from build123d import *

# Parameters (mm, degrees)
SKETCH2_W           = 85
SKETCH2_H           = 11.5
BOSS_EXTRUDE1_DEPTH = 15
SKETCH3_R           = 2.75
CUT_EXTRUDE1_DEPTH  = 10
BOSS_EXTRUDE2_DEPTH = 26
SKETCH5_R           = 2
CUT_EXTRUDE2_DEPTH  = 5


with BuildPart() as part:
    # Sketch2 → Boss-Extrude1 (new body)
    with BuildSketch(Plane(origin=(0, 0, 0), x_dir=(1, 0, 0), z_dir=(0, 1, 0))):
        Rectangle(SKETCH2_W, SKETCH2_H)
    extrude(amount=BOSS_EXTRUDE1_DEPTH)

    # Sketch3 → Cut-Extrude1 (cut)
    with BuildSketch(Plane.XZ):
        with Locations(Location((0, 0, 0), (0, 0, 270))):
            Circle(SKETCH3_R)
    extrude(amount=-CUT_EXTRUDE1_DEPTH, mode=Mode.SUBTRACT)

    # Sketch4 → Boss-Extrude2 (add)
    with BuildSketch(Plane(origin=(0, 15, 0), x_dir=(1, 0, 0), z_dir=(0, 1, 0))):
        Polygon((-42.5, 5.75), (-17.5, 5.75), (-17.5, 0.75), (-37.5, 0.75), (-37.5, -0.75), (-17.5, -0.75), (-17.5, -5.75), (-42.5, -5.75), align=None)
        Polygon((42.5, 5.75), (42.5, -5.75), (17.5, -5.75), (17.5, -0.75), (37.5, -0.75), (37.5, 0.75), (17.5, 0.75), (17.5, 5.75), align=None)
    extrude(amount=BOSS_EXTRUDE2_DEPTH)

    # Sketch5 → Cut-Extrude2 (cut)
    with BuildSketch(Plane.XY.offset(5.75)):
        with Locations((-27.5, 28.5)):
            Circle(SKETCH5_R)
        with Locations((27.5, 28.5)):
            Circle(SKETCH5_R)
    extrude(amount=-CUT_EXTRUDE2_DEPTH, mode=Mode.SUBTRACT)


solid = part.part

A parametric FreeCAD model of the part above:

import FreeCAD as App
import Part
import Sketcher
from FreeCAD import Vector
Q = App.Units.Quantity


def add_polygon(sketch, points):
    """Adds a closed chain of lines whose ends are joined by coincident constraints."""
    first, n = sketch.GeometryCount, len(points)
    for a, b in zip(points, points[1:] + points[:1]):
        sketch.addGeometry(Part.LineSegment(App.Vector(*a, 0), App.Vector(*b, 0)), False)
    for i in range(n):
        sketch.addConstraint(Sketcher.Constraint("Coincident", first + i, 2, first + (i + 1) % n, 1))

doc = App.newDocument("Part")
body = doc.addObject("PartDesign::Body", "Body")

# Sketch on XZ plane
sketch1 = body.newObject("Sketcher::SketchObject", "Sketch")
sketch1.AttachmentSupport = (doc.getObject("XZ_Plane"), [""])
sketch1.MapMode = "FlatFace"
add_polygon(sketch1, [(-42.5, -5.75), (-42.5, 5.75), (42.5, 5.75), (42.5, -5.75)])  # lines 0-3
sketch1.addConstraint(Sketcher.Constraint("Vertical", 0))
sketch1.addConstraint(Sketcher.Constraint("Horizontal", 1))
sketch1.addConstraint(Sketcher.Constraint("Vertical", 2))
sketch1.addConstraint(Sketcher.Constraint("Horizontal", 3))
sketch1.addConstraint(Sketcher.Constraint("Symmetric", 0, 2, 2, 2, -1, 1))
sketch1.addConstraint(Sketcher.Constraint("DistanceX", 1, 1, 1, 2, Q("85 mm")))
sketch1.addConstraint(Sketcher.Constraint("DistanceY", 0, 1, 0, 2, Q("11.5 mm")))
pad1 = body.newObject("PartDesign::Pad", "Pad")
pad1.Profile = sketch1
pad1.Length = 15
pad1.Reversed = True

# Sketch on XZ plane
sketch2 = body.newObject("Sketcher::SketchObject", "Sketch001")
sketch2.AttachmentSupport = (doc.getObject("XZ_Plane"), [""])
sketch2.MapMode = "FlatFace"
sketch2.addGeometry(Part.Circle(Vector(0, 0, 0), Vector(0, 0, 1), 2.75), False)
sketch2.addConstraint(Sketcher.Constraint("Coincident", 0, 3, -1, 1))
sketch2.addConstraint(Sketcher.Constraint("Diameter", 0, Q("5.5 mm")))
pocket1 = body.newObject("PartDesign::Pocket", "Pocket")
pocket1.Profile = sketch2
pocket1.Length = 10

# Sketch on XZ plane
sketch3 = body.newObject("Sketcher::SketchObject", "Sketch002")
sketch3.AttachmentSupport = (doc.getObject("XZ_Plane"), [""])
sketch3.MapMode = "FlatFace"
sketch3.AttachmentOffset = App.Placement(Vector(0, 0, -15), App.Rotation())
add_polygon(sketch3, [(-17.5, -5.75), (-42.5, -5.75), (-42.5, 5.75), (-17.5, 5.75), (-17.5, 0.75), (-37.5, 0.75), (-37.5, -0.75), (-17.5, -0.75)])  # lines 0-7
add_polygon(sketch3, [(42.5, 5.75), (42.5, -5.75), (17.5, -5.75), (17.5, -0.75), (37.5, -0.75), (37.5, 0.75), (17.5, 0.75), (17.5, 5.75)])  # lines 8-15
sketch3.addConstraint(Sketcher.Constraint("Horizontal", 0))
sketch3.addConstraint(Sketcher.Constraint("Vertical", 1))
sketch3.addConstraint(Sketcher.Constraint("Horizontal", 2))
sketch3.addConstraint(Sketcher.Constraint("Vertical", 3))
sketch3.addConstraint(Sketcher.Constraint("Horizontal", 4))
sketch3.addConstraint(Sketcher.Constraint("Vertical", 5))
sketch3.addConstraint(Sketcher.Constraint("Horizontal", 6))
sketch3.addConstraint(Sketcher.Constraint("Vertical", 7))
sketch3.addConstraint(Sketcher.Constraint("Vertical", 8))
sketch3.addConstraint(Sketcher.Constraint("Horizontal", 9))
sketch3.addConstraint(Sketcher.Constraint("Vertical", 10))
sketch3.addConstraint(Sketcher.Constraint("Horizontal", 11))
sketch3.addConstraint(Sketcher.Constraint("Vertical", 12))
sketch3.addConstraint(Sketcher.Constraint("Horizontal", 13))
sketch3.addConstraint(Sketcher.Constraint("Vertical", 14))
sketch3.addConstraint(Sketcher.Constraint("Horizontal", 15))
sketch3.addConstraint(Sketcher.Constraint("Symmetric", 1, 2, 8, 2, -1, 1))
sketch3.addConstraint(Sketcher.Constraint("Symmetric", 3, 2, 10, 2, -1, 1))
sketch3.addConstraint(Sketcher.Constraint("Symmetric", 5, 2, 12, 2, -1, 1))
sketch3.addConstraint(Sketcher.Constraint("Symmetric", 7, 2, 14, 2, -1, 1))
sketch3.addConstraint(Sketcher.Constraint("Symmetric", 7, 2, 9, 2, -2))
sketch3.addConstraint(Sketcher.Constraint("Horizontal", 6, 2, 10, 2))
sketch3.addConstraint(Sketcher.Constraint("DistanceX", 0, 2, 0, 1, Q("25 mm")))
sketch3.addConstraint(Sketcher.Constraint("DistanceX", 4, 2, 4, 1, Q("20 mm")))
sketch3.addConstraint(Sketcher.Constraint("DistanceY", 3, 2, 3, 1, Q("5 mm")))
sketch3.addConstraint(Sketcher.Constraint("DistanceY", 1, 1, 1, 2, Q("11.5 mm")))
sketch3.addConstraint(Sketcher.Constraint("DistanceX", 7, 2, 8, 2, Q("60 mm")))
pad2 = body.newObject("PartDesign::Pad", "Pad001")
pad2.Profile = sketch3
pad2.Length = 26
pad2.Reversed = True

# Sketch on XY plane
sketch4 = body.newObject("Sketcher::SketchObject", "Sketch003")
sketch4.AttachmentSupport = (doc.getObject("XY_Plane"), [""])
sketch4.MapMode = "FlatFace"
sketch4.AttachmentOffset = App.Placement(Vector(0, 0, 5.75), App.Rotation())
sketch4.addGeometry(Part.Circle(Vector(-27.5, 28.5, 0), Vector(0, 0, 1), 2), False)
sketch4.addGeometry(Part.Circle(Vector(27.5, 28.5, 0), Vector(0, 0, 1), 2), False)
sketch4.addConstraint(Sketcher.Constraint("Equal", 0, 1))
sketch4.addConstraint(Sketcher.Constraint("Symmetric", 0, 3, 1, 3, -2))
sketch4.addConstraint(Sketcher.Constraint("Diameter", 0, Q("4 mm")))
sketch4.addConstraint(Sketcher.Constraint("DistanceX", 0, 3, 1, 3, Q("55 mm")))
sketch4.addConstraint(Sketcher.Constraint("DistanceY", -1, 1, 0, 3, Q("28.5 mm")))
pocket2 = body.newObject("PartDesign::Pocket", "Pocket001")
pocket2.Profile = sketch4
pocket2.Length = 5

doc.recompute()
